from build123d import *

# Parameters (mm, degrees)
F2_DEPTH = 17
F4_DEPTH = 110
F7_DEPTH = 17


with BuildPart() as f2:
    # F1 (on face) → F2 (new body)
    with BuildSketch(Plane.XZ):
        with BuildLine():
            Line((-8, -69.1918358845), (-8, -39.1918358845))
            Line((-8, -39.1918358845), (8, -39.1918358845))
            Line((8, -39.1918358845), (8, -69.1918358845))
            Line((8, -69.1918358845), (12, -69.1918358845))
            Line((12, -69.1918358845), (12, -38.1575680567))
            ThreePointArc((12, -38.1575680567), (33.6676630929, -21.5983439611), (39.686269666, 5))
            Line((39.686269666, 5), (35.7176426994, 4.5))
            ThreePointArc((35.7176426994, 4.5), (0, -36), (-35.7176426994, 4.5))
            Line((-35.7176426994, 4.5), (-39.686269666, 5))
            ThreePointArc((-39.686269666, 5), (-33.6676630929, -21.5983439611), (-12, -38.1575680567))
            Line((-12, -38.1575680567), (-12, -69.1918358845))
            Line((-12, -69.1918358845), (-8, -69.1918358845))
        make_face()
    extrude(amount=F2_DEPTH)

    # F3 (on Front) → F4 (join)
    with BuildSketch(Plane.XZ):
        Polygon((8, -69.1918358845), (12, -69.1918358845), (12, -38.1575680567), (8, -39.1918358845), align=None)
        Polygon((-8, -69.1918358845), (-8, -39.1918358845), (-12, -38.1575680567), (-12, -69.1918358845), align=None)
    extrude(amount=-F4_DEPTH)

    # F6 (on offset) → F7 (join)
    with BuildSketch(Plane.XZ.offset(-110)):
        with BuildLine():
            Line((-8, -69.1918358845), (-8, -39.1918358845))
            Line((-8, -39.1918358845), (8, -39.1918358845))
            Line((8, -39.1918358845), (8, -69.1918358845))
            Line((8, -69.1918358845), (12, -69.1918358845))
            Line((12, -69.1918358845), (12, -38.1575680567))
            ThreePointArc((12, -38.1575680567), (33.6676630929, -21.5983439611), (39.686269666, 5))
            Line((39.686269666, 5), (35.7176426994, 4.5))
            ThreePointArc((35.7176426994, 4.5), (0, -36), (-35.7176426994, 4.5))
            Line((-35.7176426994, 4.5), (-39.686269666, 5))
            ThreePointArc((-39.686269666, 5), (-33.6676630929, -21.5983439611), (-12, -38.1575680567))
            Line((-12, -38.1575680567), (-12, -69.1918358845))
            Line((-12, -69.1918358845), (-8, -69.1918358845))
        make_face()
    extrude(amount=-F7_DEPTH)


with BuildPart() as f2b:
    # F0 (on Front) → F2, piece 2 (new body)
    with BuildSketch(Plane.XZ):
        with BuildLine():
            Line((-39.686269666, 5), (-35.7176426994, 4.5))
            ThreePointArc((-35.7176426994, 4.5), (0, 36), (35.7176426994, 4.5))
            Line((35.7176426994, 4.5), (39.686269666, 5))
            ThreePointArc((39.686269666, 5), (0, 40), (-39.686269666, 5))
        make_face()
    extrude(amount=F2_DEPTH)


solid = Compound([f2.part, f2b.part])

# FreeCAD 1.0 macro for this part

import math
import FreeCAD as App
import Part
import Sketcher

V = App.Vector
Q = App.Units.Quantity

doc = App.newDocument("Part")
body = doc.addObject("PartDesign::Body", "Body")

sketch1 = doc.addObject("Sketcher::SketchObject", "Sketch")
body.addObject(sketch1)
sketch1.AttachmentSupport = (doc.XZ_Plane, [""])
sketch1.MapMode = "FlatFace"
sketch1.addGeometry(Part.LineSegment(V(-8, -69.2, 0), V(-8, -39.2, 0)), False)
sketch1.addGeometry(Part.LineSegment(V(-8, -39.2, 0), V(8, -39.2, 0)), False)
sketch1.addGeometry(Part.LineSegment(V(8, -39.2, 0), V(8, -69.2, 0)), False)
sketch1.addGeometry(Part.LineSegment(V(8, -69.2, 0), V(12, -69.2, 0)), False)
sketch1.addGeometry(Part.LineSegment(V(12, -69.2, 0), V(12, -38.2, 0)), False)
sketch1.addGeometry(Part.ArcOfCircle(Part.Circle(V(0, 0, 0), V(0, 0, 1), 40), math.radians(-73), math.radians(7)), False)
sketch1.addGeometry(Part.LineSegment(V(39.7, 5, 0), V(35.7, 4.5, 0)), False)
sketch1.addGeometry(Part.ArcOfCircle(Part.Circle(V(0, 0, 0), V(0, 0, 1), 36), math.radians(173), math.radians(367)), False)
sketch1.addGeometry(Part.LineSegment(V(-35.7, 4.5, 0), V(-39.7, 5, 0)), False)
sketch1.addGeometry(Part.ArcOfCircle(Part.Circle(V(0, 0, 0), V(0, 0, 1), 40), math.radians(173), math.radians(253)), False)
sketch1.addGeometry(Part.LineSegment(V(-12, -38.2, 0), V(-12, -69.2, 0)), False)
sketch1.addGeometry(Part.LineSegment(V(-12, -69.2, 0), V(-8, -69.2, 0)), False)
sketch1.addConstraint(Sketcher.Constraint("Coincident", 0, 2, 1, 1))
sketch1.addConstraint(Sketcher.Constraint("Coincident", 1, 2, 2, 1))
sketch1.addConstraint(Sketcher.Constraint("Coincident", 2, 2, 3, 1))
sketch1.addConstraint(Sketcher.Constraint("Coincident", 3, 2, 4, 1))
sketch1.addConstraint(Sketcher.Constraint("Coincident", 4, 2, 5, 1))
sketch1.addConstraint(Sketcher.Constraint("Coincident", 5, 2, 6, 1))
sketch1.addConstraint(Sketcher.Constraint("Coincident", 6, 2, 7, 2))
sketch1.addConstraint(Sketcher.Constraint("Coincident", 7, 1, 8, 1))
sketch1.addConstraint(Sketcher.Constraint("Coincident", 8, 2, 9, 1))
sketch1.addConstraint(Sketcher.Constraint("Coincident", 9, 2, 10, 1))
sketch1.addConstraint(Sketcher.Constraint("Coincident", 10, 2, 11, 1))
sketch1.addConstraint(Sketcher.Constraint("Coincident", 11, 2, 0, 1))
sketch1.addConstraint(Sketcher.Constraint("Vertical", 0))
sketch1.addConstraint(Sketcher.Constraint("Horizontal", 1))
sketch1.addConstraint(Sketcher.Constraint("Vertical", 2))
sketch1.addConstraint(Sketcher.Constraint("Horizontal", 3))
sketch1.addConstraint(Sketcher.Constraint("Vertical", 4))
sketch1.addConstraint(Sketcher.Constraint("Vertical", 10))
sketch1.addConstraint(Sketcher.Constraint("Horizontal", 11))
sketch1.addConstraint(Sketcher.Constraint("Coincident", 5, 3, -1, 1))
sketch1.addConstraint(Sketcher.Constraint("Coincident", 7, 3, -1, 1))
sketch1.addConstraint(Sketcher.Constraint("Coincident", 9, 3, -1, 1))
sketch1.addConstraint(Sketcher.Constraint("Equal", 5, 9))
sketch1.addConstraint(Sketcher.Constraint("Symmetric", 3, 2, 10, 2, -2))
sketch1.addConstraint(Sketcher.Constraint("Horizontal", 6, 2, 7, 1))
sketch1.addConstraint(Sketcher.Constraint("Horizontal", 5, 2, 8, 2))
sketch1.addConstraint(Sketcher.Constraint("Equal", 3, 11))
sketch1.addConstraint(Sketcher.Constraint("Radius", 5, Q("40 mm")))
sketch1.addConstraint(Sketcher.Constraint("Radius", 7, Q("36 mm")))
sketch1.addConstraint(Sketcher.Constraint("DistanceX", 1, 1, 1, 2, Q("16 mm")))
sketch1.addConstraint(Sketcher.Constraint("DistanceX", 3, 1, 3, 2, Q("4 mm")))
sketch1.addConstraint(Sketcher.Constraint("DistanceY", 0, 1, 0, 2, Q("30 mm")))
sketch1.addConstraint(Sketcher.Constraint("DistanceY", -1, 1, 5, 2, Q("5 mm")))
sketch1.addConstraint(Sketcher.Constraint("DistanceY", -1, 1, 6, 2, Q("4.5 mm")))
sketch1.addConstraint(Sketcher.Constraint("DistanceY", 4, 1, 4, 2, Q("31.034268 mm")))
pad1 = doc.addObject("PartDesign::Pad", "Pad")
body.addObject(pad1)
pad1.Profile = sketch1
pad1.Length = 17

sketch2 = doc.addObject("Sketcher::SketchObject", "Sketch001")
body.addObject(sketch2)
sketch2.AttachmentSupport = (doc.XZ_Plane, [""])
sketch2.MapMode = "FlatFace"
sketch2.addGeometry(Part.LineSegment(V(8, -69.2, 0), V(12, -69.2, 0)), False)
sketch2.addGeometry(Part.LineSegment(V(12, -69.2, 0), V(12, -38.2, 0)), False)
sketch2.addGeometry(Part.LineSegment(V(12, -38.2, 0), V(8, -39.2, 0)), False)
sketch2.addGeometry(Part.LineSegment(V(8, -39.2, 0), V(8, -69.2, 0)), False)
sketch2.addGeometry(Part.LineSegment(V(-8, -69.2, 0), V(-8, -39.2, 0)), False)
sketch2.addGeometry(Part.LineSegment(V(-8, -39.2, 0), V(-12, -38.2, 0)), False)
sketch2.addGeometry(Part.LineSegment(V(-12, -38.2, 0), V(-12, -69.2, 0)), False)
sketch2.addGeometry(Part.LineSegment(V(-12, -69.2, 0), V(-8, -69.2, 0)), False)
sketch2.addConstraint(Sketcher.Constraint("Coincident", 0, 2, 1, 1))
sketch2.addConstraint(Sketcher.Constraint("Coincident", 1, 2, 2, 1))
sketch2.addConstraint(Sketcher.Constraint("Coincident", 2, 2, 3, 1))
sketch2.addConstraint(Sketcher.Constraint("Coincident", 3, 2, 0, 1))
sketch2.addConstraint(Sketcher.Constraint("Coincident", 4, 2, 5, 1))
sketch2.addConstraint(Sketcher.Constraint("Coincident", 5, 2, 6, 1))
sketch2.addConstraint(Sketcher.Constraint("Coincident", 6, 2, 7, 1))
sketch2.addConstraint(Sketcher.Constraint("Coincident", 7, 2, 4, 1))
sketch2.addConstraint(Sketcher.Constraint("Horizontal", 0))
sketch2.addConstraint(Sketcher.Constraint("Vertical", 1))
sketch2.addConstraint(Sketcher.Constraint("Vertical", 3))
sketch2.addConstraint(Sketcher.Constraint("Vertical", 4))
sketch2.addConstraint(Sketcher.Constraint("Vertical", 6))
sketch2.addConstraint(Sketcher.Constraint("Horizontal", 7))
sketch2.addConstraint(Sketcher.Constraint("Symmetric", 2, 2, 4, 2, -2))
sketch2.addConstraint(Sketcher.Constraint("Symmetric", 1, 2, 5, 2, -2))
sketch2.addConstraint(Sketcher.Constraint("Horizontal", 3, 2, 6, 2))
sketch2.addConstraint(Sketcher.Constraint("DistanceX", 0, 1, 0, 2, Q("4 mm")))
sketch2.addConstraint(Sketcher.Constraint("DistanceY", 3, 2, 3, 1, Q("30 mm")))
sketch2.addConstraint(Sketcher.Constraint("DistanceX", -1, 1, 0, 2, Q("12 mm")))
sketch2.addConstraint(Sketcher.Constraint("Distance", 2, Q("4.131551 mm")))
sketch2.addConstraint(Sketcher.Constraint("DistanceY", 1, 2, -1, 1, Q("38.157568 mm")))
pad2 = doc.addObject("PartDesign::Pad", "Pad001")
body.addObject(pad2)
pad2.Profile = sketch2
pad2.Length = 110
pad2.Reversed = True

sketch3 = doc.addObject("Sketcher::SketchObject", "Sketch002")
body.addObject(sketch3)
sketch3.AttachmentSupport = (doc.XZ_Plane, [""])
sketch3.MapMode = "FlatFace"
sketch3.AttachmentOffset = App.Placement(V(0, 0, -110), App.Rotation())
sketch3.addGeometry(Part.LineSegment(V(-8, -69.2, 0), V(-8, -39.2, 0)), False)
sketch3.addGeometry(Part.LineSegment(V(-8, -39.2, 0), V(8, -39.2, 0)), False)
sketch3.addGeometry(Part.LineSegment(V(8, -39.2, 0), V(8, -69.2, 0)), False)
sketch3.addGeometry(Part.LineSegment(V(8, -69.2, 0), V(12, -69.2, 0)), False)
sketch3.addGeometry(Part.LineSegment(V(12, -69.2, 0), V(12, -38.2, 0)), False)
sketch3.addGeometry(Part.ArcOfCircle(Part.Circle(V(0, 0, 0), V(0, 0, 1), 40), math.radians(-73), math.radians(7)), False)
sketch3.addGeometry(Part.LineSegment(V(39.7, 5, 0), V(35.7, 4.5, 0)), False)
sketch3.addGeometry(Part.ArcOfCircle(Part.Circle(V(0, 0, 0), V(0, 0, 1), 36), math.radians(173), math.radians(367)), False)
sketch3.addGeometry(Part.LineSegment(V(-35.7, 4.5, 0), V(-39.7, 5, 0)), False)
sketch3.addGeometry(Part.ArcOfCircle(Part.Circle(V(0, 0, 0), V(0, 0, 1), 40), math.radians(173), math.radians(253)), False)
sketch3.addGeometry(Part.LineSegment(V(-12, -38.2, 0), V(-12, -69.2, 0)), False)
sketch3.addGeometry(Part.LineSegment(V(-12, -69.2, 0), V(-8, -69.2, 0)), False)
sketch3.addConstraint(Sketcher.Constraint("Coincident", 0, 2, 1, 1))
sketch3.addConstraint(Sketcher.Constraint("Coincident", 1, 2, 2, 1))
sketch3.addConstraint(Sketcher.Constraint("Coincident", 2, 2, 3, 1))
sketch3.addConstraint(Sketcher.Constraint("Coincident", 3, 2, 4, 1))
sketch3.addConstraint(Sketcher.Constraint("Coincident", 4, 2, 5, 1))
sketch3.addConstraint(Sketcher.Constraint("Coincident", 5, 2, 6, 1))
sketch3.addConstraint(Sketcher.Constraint("Coincident", 6, 2, 7, 2))
sketch3.addConstraint(Sketcher.Constraint("Coincident", 7, 1, 8, 1))
sketch3.addConstraint(Sketcher.Constraint("Coincident", 8, 2, 9, 1))
sketch3.addConstraint(Sketcher.Constraint("Coincident", 9, 2, 10, 1))
sketch3.addConstraint(Sketcher.Constraint("Coincident", 10, 2, 11, 1))
sketch3.addConstraint(Sketcher.Constraint("Coincident", 11, 2, 0, 1))
sketch3.addConstraint(Sketcher.Constraint("Vertical", 0))
sketch3.addConstraint(Sketcher.Constraint("Horizontal", 1))
sketch3.addConstraint(Sketcher.Constraint("Vertical", 2))
sketch3.addConstraint(Sketcher.Constraint("Horizontal", 3))
sketch3.addConstraint(Sketcher.Constraint("Vertical", 4))
sketch3.addConstraint(Sketcher.Constraint("Vertical", 10))
sketch3.addConstraint(Sketcher.Constraint("Horizontal", 11))
sketch3.addConstraint(Sketcher.Constraint("Coincident", 5, 3, -1, 1))
sketch3.addConstraint(Sketcher.Constraint("Coincident", 7, 3, -1, 1))
sketch3.addConstraint(Sketcher.Constraint("Coincident", 9, 3, -1, 1))
sketch3.addConstraint(Sketcher.Constraint("Equal", 5, 9))
sketch3.addConstraint(Sketcher.Constraint("Symmetric", 3, 2, 10, 2, -2))
sketch3.addConstraint(Sketcher.Constraint("Horizontal", 6, 2, 7, 1))
sketch3.addConstraint(Sketcher.Constraint("Horizontal", 5, 2, 8, 2))
sketch3.addConstraint(Sketcher.Constraint("Equal", 3, 11))
sketch3.addConstraint(Sketcher.Constraint("Radius", 5, Q("40 mm")))
sketch3.addConstraint(Sketcher.Constraint("Radius", 7, Q("36 mm")))
sketch3.addConstraint(Sketcher.Constraint("DistanceX", 1, 1, 1, 2, Q("16 mm")))
sketch3.addConstraint(Sketcher.Constraint("DistanceX", 3, 1, 3, 2, Q("4 mm")))
sketch3.addConstraint(Sketcher.Constraint("DistanceY", 0, 1, 0, 2, Q("30 mm")))
sketch3.addConstraint(Sketcher.Constraint("DistanceY", -1, 1, 5, 2, Q("5 mm")))
sketch3.addConstraint(Sketcher.Constraint("DistanceY", -1, 1, 6, 2, Q("4.5 mm")))
sketch3.addConstraint(Sketcher.Constraint("DistanceY", 4, 1, 4, 2, Q("31.034268 mm")))
pad3 = doc.addObject("PartDesign::Pad", "Pad002")
body.addObject(pad3)
pad3.Profile = sketch3
pad3.Length = 17
pad3.Reversed = True
body2 = doc.addObject("PartDesign::Body", "Body001")

sketch4 = doc.addObject("Sketcher::SketchObject", "Sketch003")
body2.addObject(sketch4)
sketch4.AttachmentSupport = (doc.getObject("XZ_Plane001"), [""])
sketch4.MapMode = "FlatFace"
sketch4.addGeometry(Part.LineSegment(V(-39.7, 5, 0), V(-35.7, 4.5, 0)), False)
sketch4.addGeometry(Part.ArcOfCircle(Part.Circle(V(0, 0, 0), V(0, 0, 1), 36), math.radians(7), math.radians(173)), False)
sketch4.addGeometry(Part.LineSegment(V(35.7, 4.5, 0), V(39.7, 5, 0)), False)
sketch4.addGeometry(Part.ArcOfCircle(Part.Circle(V(0, 0, 0), V(0, 0, 1), 40), math.radians(7), math.radians(173)), False)
sketch4.addConstraint(Sketcher.Constraint("Coincident", 0, 2, 1, 2))
sketch4.addConstraint(Sketcher.Constraint("Coincident", 1, 1, 2, 1))
sketch4.addConstraint(Sketcher.Constraint("Coincident", 2, 2, 3, 1))
sketch4.addConstraint(Sketcher.Constraint("Coincident", 3, 2, 0, 1))
sketch4.addConstraint(Sketcher.Constraint("Coincident", 1, 3, -1, 1))
sketch4.addConstraint(Sketcher.Constraint("Coincident", 3, 3, -1, 1))
sketch4.addConstraint(Sketcher.Constraint("Horizontal", 0, 2, 1, 1))
sketch4.addConstraint(Sketcher.Constraint("Horizontal", 2, 2, 3, 2))
sketch4.addConstraint(Sketcher.Constraint("Radius", 1, Q("36 mm")))
sketch4.addConstraint(Sketcher.Constraint("Radius", 3, Q("40 mm")))
sketch4.addConstraint(Sketcher.Constraint("DistanceY", -1, 1, 2, 2, Q("5 mm")))
sketch4.addConstraint(Sketcher.Constraint("DistanceY", -1, 1, 0, 2, Q("4.5 mm")))
pad4 = doc.addObject("PartDesign::Pad", "Pad003")
body2.addObject(pad4)
pad4.Profile = sketch4
pad4.Length = 17

doc.recompute()
